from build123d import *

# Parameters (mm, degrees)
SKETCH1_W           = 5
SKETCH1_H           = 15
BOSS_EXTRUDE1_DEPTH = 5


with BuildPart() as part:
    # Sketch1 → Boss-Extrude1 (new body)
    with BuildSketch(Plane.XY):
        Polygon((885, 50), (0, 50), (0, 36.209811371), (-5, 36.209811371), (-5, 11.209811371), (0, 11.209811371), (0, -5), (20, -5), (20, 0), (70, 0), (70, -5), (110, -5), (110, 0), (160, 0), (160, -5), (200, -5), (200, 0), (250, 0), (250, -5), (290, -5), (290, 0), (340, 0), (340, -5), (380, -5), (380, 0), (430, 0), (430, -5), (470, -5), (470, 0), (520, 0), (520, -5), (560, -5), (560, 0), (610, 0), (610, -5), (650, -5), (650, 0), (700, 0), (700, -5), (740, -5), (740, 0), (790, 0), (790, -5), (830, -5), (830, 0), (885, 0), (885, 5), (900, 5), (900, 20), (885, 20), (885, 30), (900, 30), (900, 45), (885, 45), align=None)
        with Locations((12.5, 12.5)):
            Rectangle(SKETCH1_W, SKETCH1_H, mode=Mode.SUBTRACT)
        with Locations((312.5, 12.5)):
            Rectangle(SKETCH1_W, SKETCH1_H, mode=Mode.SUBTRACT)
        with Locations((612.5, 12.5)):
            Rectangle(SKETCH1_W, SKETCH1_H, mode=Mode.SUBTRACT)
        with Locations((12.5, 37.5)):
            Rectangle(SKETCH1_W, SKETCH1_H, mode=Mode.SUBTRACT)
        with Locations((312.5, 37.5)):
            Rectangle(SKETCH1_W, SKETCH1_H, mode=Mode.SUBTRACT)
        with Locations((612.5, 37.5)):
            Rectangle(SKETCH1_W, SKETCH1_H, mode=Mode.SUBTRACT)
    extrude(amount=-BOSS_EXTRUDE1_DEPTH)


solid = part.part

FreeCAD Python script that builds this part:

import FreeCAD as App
import Part
import Sketcher

V = App.Vector


def add_polygon(sketch, points):
    """Adds a closed chain of lines whose ends are joined by coincident constraints."""
    first, n = sketch.GeometryCount, len(points)
    for a, b in zip(points, points[1:] + points[:1]):
        sketch.addGeometry(Part.LineSegment(App.Vector(*a, 0), App.Vector(*b, 0)), False)
    for i in range(n):
        sketch.addConstraint(Sketcher.Constraint("Coincident", first + i, 2, first + (i + 1) % n, 1))

doc = App.newDocument("Part")
body = doc.addObject("PartDesign::Body", "Body")

# Sketch on XY plane
sketch1 = doc.addObject("Sketcher::SketchObject", "Sketch")
body.addObject(sketch1)
sketch1.AttachmentSupport = (doc.XY_Plane, [""])
sketch1.MapMode = "FlatFace"
add_polygon(sketch1, [(885, 50), (0, 50), (0, 36.209811), (-5, 36.209811), (-5, 11.209811), (0, 11.209811), (0, -5), (20, -5), (20, 0), (70, 0), (70, -5), (110, -5), (110, 0), (160, 0), (160, -5), (200, -5), (200, 0), (250, 0), (250, -5), (290, -5), (290, 0), (340, 0), (340, -5), (380, -5), (380, 0), (430, 0), (430, -5), (470, -5), (470, 0), (520, 0), (520, -5), (560, -5), (560, 0), (610, 0), (610, -5), (650, -5), (650, 0), (700, 0), (700, -5), (740, -5), (740, 0), (790, 0), (790, -5), (830, -5), (830, 0), (885, 0), (885, 5), (900, 5), (900, 20), (885, 20), (885, 30), (900, 30), (900, 45), (885, 45)])  # lines 0-53
add_polygon(sketch1, [(15, 5), (10, 5), (10, 20), (15, 20)])  # lines 54-57
add_polygon(sketch1, [(315, 5), (310, 5), (310, 20), (315, 20)])  # lines 58-61
add_polygon(sketch1, [(615, 5), (610, 5), (610, 20), (615, 20)])  # lines 62-65
add_polygon(sketch1, [(15, 30), (10, 30), (10, 45), (15, 45)])  # lines 66-69
add_polygon(sketch1, [(315, 30), (310, 30), (310, 45), (315, 45)])  # lines 70-73
add_polygon(sketch1, [(615, 30), (610, 30), (610, 45), (615, 45)])  # lines 74-77
sketch1.addConstraint([
    Sketcher.Constraint("Horizontal", 0),
    Sketcher.Constraint("Vertical", 1),
    Sketcher.Constraint("Horizontal", 2),
    Sketcher.Constraint("Vertical", 3),
    Sketcher.Constraint("Horizontal", 4),
    Sketcher.Constraint("Vertical", 5),
    Sketcher.Constraint("Horizontal", 6),
    Sketcher.Constraint("Vertical", 7),
    Sketcher.Constraint("Horizontal", 8),
    Sketcher.Constraint("Vertical", 9),
    Sketcher.Constraint("Horizontal", 10),
    Sketcher.Constraint("Vertical", 11),
    Sketcher.Constraint("Horizontal", 12),
    Sketcher.Constraint("Vertical", 13),
    Sketcher.Constraint("Horizontal", 14),
    Sketcher.Constraint("Vertical", 15),
    Sketcher.Constraint("Horizontal", 16),
    Sketcher.Constraint("Vertical", 17),
    Sketcher.Constraint("Horizontal", 18),
    Sketcher.Constraint("Vertical", 19),
    Sketcher.Constraint("Horizontal", 20),
    Sketcher.Constraint("Vertical", 21),
    Sketcher.Constraint("Horizontal", 22),
    Sketcher.Constraint("Vertical", 23),
    Sketcher.Constraint("Horizontal", 24),
    Sketcher.Constraint("Vertical", 25),
    Sketcher.Constraint("Horizontal", 26),
    Sketcher.Constraint("Vertical", 27),
    Sketcher.Constraint("Horizontal", 28),
    Sketcher.Constraint("Vertical", 29),
    Sketcher.Constraint("Horizontal", 30),
    Sketcher.Constraint("Vertical", 31),
    Sketcher.Constraint("Horizontal", 32),
    Sketcher.Constraint("Vertical", 33),
    Sketcher.Constraint("Horizontal", 34),
    Sketcher.Constraint("Vertical", 35),
    Sketcher.Constraint("Horizontal", 36),
    Sketcher.Constraint("Vertical", 37),
    Sketcher.Constraint("Horizontal", 38),
    Sketcher.Constraint("Vertical", 39),
    Sketcher.Constraint("Horizontal", 40),
    Sketcher.Constraint("Vertical", 41),
    Sketcher.Constraint("Horizontal", 42),
    Sketcher.Constraint("Vertical", 43),
    Sketcher.Constraint("Horizontal", 44),
    Sketcher.Constraint("Vertical", 45),
    Sketcher.Constraint("Horizontal", 46),
    Sketcher.Constraint("Vertical", 47),
    Sketcher.Constraint("Horizontal", 48),
    Sketcher.Constraint("Vertical", 49),
    Sketcher.Constraint("Horizontal", 50),
    Sketcher.Constraint("Vertical", 51),
    Sketcher.Constraint("Horizontal", 52),
    Sketcher.Constraint("Vertical", 53),
    Sketcher.Constraint("Horizontal", 54),
    Sketcher.Constraint("Vertical", 55),
    Sketcher.Constraint("Horizontal", 56),
    Sketcher.Constraint("Vertical", 57),
    Sketcher.Constraint("Horizontal", 58),
    Sketcher.Constraint("Vertical", 59),
    Sketcher.Constraint("Horizontal", 60),
    Sketcher.Constraint("Vertical", 61),
    Sketcher.Constraint("Horizontal", 62),
    Sketcher.Constraint("Vertical", 63),
    Sketcher.Constraint("Horizontal", 64),
    Sketcher.Constraint("Vertical", 65),
    Sketcher.Constraint("Horizontal", 66),
    Sketcher.Constraint("Vertical", 67),
    Sketcher.Constraint("Horizontal", 68),
    Sketcher.Constraint("Vertical", 69),
    Sketcher.Constraint("Horizontal", 70),
    Sketcher.Constraint("Vertical", 71),
    Sketcher.Constraint("Horizontal", 72),
    Sketcher.Constraint("Vertical", 73),
    Sketcher.Constraint("Horizontal", 74),
    Sketcher.Constraint("Vertical", 75),
    Sketcher.Constraint("Horizontal", 76),
    Sketcher.Constraint("Vertical", 77),
    Sketcher.Constraint("Symmetric", 33, 2, 62, 2, -1),
    Sketcher.Constraint("PointOnObject", 0, 2, -2),
    Sketcher.Constraint("PointOnObject", 4, 2, -2),
    Sketcher.Constraint("PointOnObject", 7, 2, -1),
    Sketcher.Constraint("PointOnObject", 11, 2, -1),
    Sketcher.Constraint("PointOnObject", 15, 2, -1),
    Sketcher.Constraint("PointOnObject", 19, 2, -1),
    Sketcher.Constraint("PointOnObject", 23, 2, -1),
    Sketcher.Constraint("PointOnObject", 27, 2, -1),
    Sketcher.Constraint("PointOnObject", 31, 2, -1),
    Sketcher.Constraint("PointOnObject", 35, 2, -1),
    Sketcher.Constraint("PointOnObject", 39, 2, -1),
    Sketcher.Constraint("PointOnObject", 43, 2, -1),
    Sketcher.Constraint("Horizontal", 6, 2, 9, 2),
    Sketcher.Constraint("Horizontal", 10, 2, 13, 2),
    Sketcher.Constraint("Horizontal", 14, 2, 17, 2),
    Sketcher.Constraint("Horizontal", 18, 2, 21, 2),
    Sketcher.Constraint("Horizontal", 22, 2, 25, 2),
    Sketcher.Constraint("Horizontal", 26, 2, 29, 2),
    Sketcher.Constraint("Horizontal", 30, 2, 33, 2),
    Sketcher.Constraint("Horizontal", 34, 2, 37, 2),
    Sketcher.Constraint("Horizontal", 38, 2, 41, 2),
    Sketcher.Constraint("Horizontal", 46, 2, 54, 2),
    Sketcher.Constraint("Horizontal", 48, 2, 55, 2),
    Sketcher.Constraint("Horizontal", 57, 2, 58, 2),
    Sketcher.Constraint("Horizontal", 56, 2, 59, 2),
    Sketcher.Constraint("Horizontal", 61, 2, 62, 2),
    Sketcher.Constraint("Horizontal", 60, 2, 63, 2),
    Sketcher.Constraint("Horizontal", 50, 2, 66, 2),
    Sketcher.Constraint("Horizontal", 52, 2, 67, 2),
    Sketcher.Constraint("Horizontal", 69, 2, 70, 2),
    Sketcher.Constraint("Horizontal", 68, 2, 71, 2),
    Sketcher.Constraint("Horizontal", 73, 2, 74, 2),
    Sketcher.Constraint("Horizontal", 72, 2, 75, 2),
    Sketcher.Constraint("Vertical", 45, 2, 48, 2),
    Sketcher.Constraint("Vertical", 47, 2, 50, 2),
    Sketcher.Constraint("Vertical", 49, 2, 52, 2),
    Sketcher.Constraint("Vertical", 55, 2, 66, 2),
    Sketcher.Constraint("Vertical", 57, 2, 68, 2),
    Sketcher.Constraint("Vertical", 59, 2, 70, 2),
    Sketcher.Constraint("Vertical", 61, 2, 72, 2),
    Sketcher.Constraint("Vertical", 63, 2, 74, 2),
    Sketcher.Constraint("Vertical", 65, 2, 76, 2),
    Sketcher.Constraint("Equal", 8, 12),
    Sketcher.Constraint("Equal", 10, 14),
    Sketcher.Constraint("Equal", 12, 16),
    Sketcher.Constraint("Equal", 14, 18),
    Sketcher.Constraint("Equal", 16, 20),
    Sketcher.Constraint("Equal", 18, 22),
    Sketcher.Constraint("Equal", 20, 24),
    Sketcher.Constraint("Equal", 22, 26),
    Sketcher.Constraint("Equal", 24, 28),
    Sketcher.Constraint("Equal", 26, 30),
    Sketcher.Constraint("Equal", 28, 32),
    Sketcher.Constraint("Equal", 30, 34),
    Sketcher.Constraint("Equal", 32, 36),
    Sketcher.Constraint("Equal", 34, 38),
    Sketcher.Constraint("Equal", 36, 40),
    Sketcher.Constraint("Equal", 38, 42),
    Sketcher.Constraint("Equal", 4, 54),
    Sketcher.Constraint("Equal", 56, 58),
    Sketcher.Constraint("Equal", 60, 62),
    Sketcher.Constraint("Equal", 76, 7),
    Sketcher.Constraint("Equal", 52, 47),
    Sketcher.Constraint("Equal", 47, 51),
    Sketcher.Constraint("Equal", 45, 53),
    Sketcher.Constraint("DistanceX", 0, 2, 0, 1, 885.0),
    Sketcher.Constraint("DistanceX", 2, 2, 2, 1, 5.0),
    Sketcher.Constraint("DistanceX", 6, 1, 6, 2, 20.0),
    Sketcher.Constraint("DistanceX", 8, 1, 8, 2, 50.0),
    Sketcher.Constraint("DistanceX", 10, 1, 10, 2, 40.0),
    Sketcher.Constraint("DistanceX", 46, 1, 46, 2, 15.0),
    Sketcher.Constraint("DistanceY", 3, 2, 3, 1, 25.0),
    Sketcher.Constraint("DistanceY", 49, 1, 49, 2, 10.0),
    Sketcher.Constraint("DistanceX", -1, 1, 54, 2, 10.0),
    Sketcher.Constraint("DistanceX", -1, 1, 58, 2, 310.0),
    Sketcher.Constraint("DistanceY", 1, 2, 1, 1, 13.790189),
])
pad1 = doc.addObject("PartDesign::Pad", "Pad")
body.addObject(pad1)
pad1.Profile = sketch1
pad1.Length = 5
pad1.Reversed = True

doc.recompute()
